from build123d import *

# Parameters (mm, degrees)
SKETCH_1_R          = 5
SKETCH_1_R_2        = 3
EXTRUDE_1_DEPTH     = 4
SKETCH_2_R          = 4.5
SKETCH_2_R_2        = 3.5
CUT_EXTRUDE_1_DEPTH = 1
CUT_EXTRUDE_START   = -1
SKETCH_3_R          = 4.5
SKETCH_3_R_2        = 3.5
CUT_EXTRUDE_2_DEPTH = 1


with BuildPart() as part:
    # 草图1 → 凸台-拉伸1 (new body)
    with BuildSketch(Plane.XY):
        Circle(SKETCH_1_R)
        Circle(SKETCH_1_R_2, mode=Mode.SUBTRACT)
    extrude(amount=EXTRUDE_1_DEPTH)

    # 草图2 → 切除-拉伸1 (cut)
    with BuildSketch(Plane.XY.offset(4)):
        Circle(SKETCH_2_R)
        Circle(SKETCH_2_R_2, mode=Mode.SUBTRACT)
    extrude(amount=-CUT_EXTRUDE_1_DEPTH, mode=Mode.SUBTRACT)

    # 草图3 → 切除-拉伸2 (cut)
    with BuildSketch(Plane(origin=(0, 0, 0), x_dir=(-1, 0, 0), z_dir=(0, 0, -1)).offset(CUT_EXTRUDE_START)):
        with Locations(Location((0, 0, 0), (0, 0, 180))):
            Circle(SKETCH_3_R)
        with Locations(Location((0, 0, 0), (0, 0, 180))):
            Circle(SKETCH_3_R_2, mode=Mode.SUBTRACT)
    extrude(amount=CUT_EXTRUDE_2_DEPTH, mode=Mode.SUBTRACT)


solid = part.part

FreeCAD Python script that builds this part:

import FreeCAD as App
import Part
import Sketcher

doc = App.newDocument("Part")
body = doc.addObject("PartDesign::Body", "Body")

# Sketch on XY plane
sketch1 = doc.addObject("Sketcher::SketchObject", "Sketch")
body.addObject(sketch1)
sketch1.AttachmentSupport = (doc.XY_Plane, [""])
sketch1.MapMode = "FlatFace"
sketch1.addGeometry([
    Part.Circle(App.Vector(0, 0, 0), App.Vector(0, 0, 1), 5),
    Part.Circle(App.Vector(0, 0, 0), App.Vector(0, 0, 1), 3),
], False)
sketch1.addConstraint([
    Sketcher.Constraint("Coincident", 0, 3, -1, 1),
    Sketcher.Constraint("Coincident", 1, 3, -1, 1),
    Sketcher.Constraint("Diameter", 0, 10.0),
    Sketcher.Constraint("Diameter", 1, 6.0),
])
pad1 = doc.addObject("PartDesign::Pad", "Pad")
body.addObject(pad1)
pad1.Profile = sketch1
pad1.Length = 4

# Sketch on XY plane
sketch2 = doc.addObject("Sketcher::SketchObject", "Sketch001")
body.addObject(sketch2)
sketch2.AttachmentSupport = (doc.XY_Plane, [""])
sketch2.MapMode = "FlatFace"
sketch2.AttachmentOffset = App.Placement(App.Vector(0, 0, 4), App.Rotation())
sketch2.addGeometry([
    Part.Circle(App.Vector(0, 0, 0), App.Vector(0, 0, 1), 4.5),
    Part.Circle(App.Vector(0, 0, 0), App.Vector(0, 0, 1), 3.5),
], False)
sketch2.addConstraint([
    Sketcher.Constraint("Coincident", 0, 3, -1, 1),
    Sketcher.Constraint("Coincident", 1, 3, -1, 1),
    Sketcher.Constraint("Diameter", 0, 9.0),
    Sketcher.Constraint("Diameter", 1, 7.0),
])
pocket1 = doc.addObject("PartDesign::Pocket", "Pocket")
body.addObject(pocket1)
pocket1.Profile = sketch2
pocket1.Length = 1

# Sketch on XY plane
sketch3 = doc.addObject("Sketcher::SketchObject", "Sketch002")
body.addObject(sketch3)
sketch3.AttachmentSupport = (doc.XY_Plane, [""])
sketch3.MapMode = "FlatFace"
sketch3.AttachmentOffset = App.Placement(App.Vector(0, 0, 1), App.Rotation())
sketch3.addGeometry([
    Part.Circle(App.Vector(0, 0, 0), App.Vector(0, 0, 1), 4.5),
    Part.Circle(App.Vector(0, 0, 0), App.Vector(0, 0, 1), 3.5),
], False)
sketch3.addConstraint([
    Sketcher.Constraint("Coincident", 0, 3, -1, 1),
    Sketcher.Constraint("Coincident", 1, 3, -1, 1),
    Sketcher.Constraint("Diameter", 0, 9.0),
    Sketcher.Constraint("Diameter", 1, 7.0),
])
pocket2 = doc.addObject("PartDesign::Pocket", "Pocket001")
body.addObject(pocket2)
pocket2.Profile = sketch3
pocket2.Length = 1

doc.recompute()
